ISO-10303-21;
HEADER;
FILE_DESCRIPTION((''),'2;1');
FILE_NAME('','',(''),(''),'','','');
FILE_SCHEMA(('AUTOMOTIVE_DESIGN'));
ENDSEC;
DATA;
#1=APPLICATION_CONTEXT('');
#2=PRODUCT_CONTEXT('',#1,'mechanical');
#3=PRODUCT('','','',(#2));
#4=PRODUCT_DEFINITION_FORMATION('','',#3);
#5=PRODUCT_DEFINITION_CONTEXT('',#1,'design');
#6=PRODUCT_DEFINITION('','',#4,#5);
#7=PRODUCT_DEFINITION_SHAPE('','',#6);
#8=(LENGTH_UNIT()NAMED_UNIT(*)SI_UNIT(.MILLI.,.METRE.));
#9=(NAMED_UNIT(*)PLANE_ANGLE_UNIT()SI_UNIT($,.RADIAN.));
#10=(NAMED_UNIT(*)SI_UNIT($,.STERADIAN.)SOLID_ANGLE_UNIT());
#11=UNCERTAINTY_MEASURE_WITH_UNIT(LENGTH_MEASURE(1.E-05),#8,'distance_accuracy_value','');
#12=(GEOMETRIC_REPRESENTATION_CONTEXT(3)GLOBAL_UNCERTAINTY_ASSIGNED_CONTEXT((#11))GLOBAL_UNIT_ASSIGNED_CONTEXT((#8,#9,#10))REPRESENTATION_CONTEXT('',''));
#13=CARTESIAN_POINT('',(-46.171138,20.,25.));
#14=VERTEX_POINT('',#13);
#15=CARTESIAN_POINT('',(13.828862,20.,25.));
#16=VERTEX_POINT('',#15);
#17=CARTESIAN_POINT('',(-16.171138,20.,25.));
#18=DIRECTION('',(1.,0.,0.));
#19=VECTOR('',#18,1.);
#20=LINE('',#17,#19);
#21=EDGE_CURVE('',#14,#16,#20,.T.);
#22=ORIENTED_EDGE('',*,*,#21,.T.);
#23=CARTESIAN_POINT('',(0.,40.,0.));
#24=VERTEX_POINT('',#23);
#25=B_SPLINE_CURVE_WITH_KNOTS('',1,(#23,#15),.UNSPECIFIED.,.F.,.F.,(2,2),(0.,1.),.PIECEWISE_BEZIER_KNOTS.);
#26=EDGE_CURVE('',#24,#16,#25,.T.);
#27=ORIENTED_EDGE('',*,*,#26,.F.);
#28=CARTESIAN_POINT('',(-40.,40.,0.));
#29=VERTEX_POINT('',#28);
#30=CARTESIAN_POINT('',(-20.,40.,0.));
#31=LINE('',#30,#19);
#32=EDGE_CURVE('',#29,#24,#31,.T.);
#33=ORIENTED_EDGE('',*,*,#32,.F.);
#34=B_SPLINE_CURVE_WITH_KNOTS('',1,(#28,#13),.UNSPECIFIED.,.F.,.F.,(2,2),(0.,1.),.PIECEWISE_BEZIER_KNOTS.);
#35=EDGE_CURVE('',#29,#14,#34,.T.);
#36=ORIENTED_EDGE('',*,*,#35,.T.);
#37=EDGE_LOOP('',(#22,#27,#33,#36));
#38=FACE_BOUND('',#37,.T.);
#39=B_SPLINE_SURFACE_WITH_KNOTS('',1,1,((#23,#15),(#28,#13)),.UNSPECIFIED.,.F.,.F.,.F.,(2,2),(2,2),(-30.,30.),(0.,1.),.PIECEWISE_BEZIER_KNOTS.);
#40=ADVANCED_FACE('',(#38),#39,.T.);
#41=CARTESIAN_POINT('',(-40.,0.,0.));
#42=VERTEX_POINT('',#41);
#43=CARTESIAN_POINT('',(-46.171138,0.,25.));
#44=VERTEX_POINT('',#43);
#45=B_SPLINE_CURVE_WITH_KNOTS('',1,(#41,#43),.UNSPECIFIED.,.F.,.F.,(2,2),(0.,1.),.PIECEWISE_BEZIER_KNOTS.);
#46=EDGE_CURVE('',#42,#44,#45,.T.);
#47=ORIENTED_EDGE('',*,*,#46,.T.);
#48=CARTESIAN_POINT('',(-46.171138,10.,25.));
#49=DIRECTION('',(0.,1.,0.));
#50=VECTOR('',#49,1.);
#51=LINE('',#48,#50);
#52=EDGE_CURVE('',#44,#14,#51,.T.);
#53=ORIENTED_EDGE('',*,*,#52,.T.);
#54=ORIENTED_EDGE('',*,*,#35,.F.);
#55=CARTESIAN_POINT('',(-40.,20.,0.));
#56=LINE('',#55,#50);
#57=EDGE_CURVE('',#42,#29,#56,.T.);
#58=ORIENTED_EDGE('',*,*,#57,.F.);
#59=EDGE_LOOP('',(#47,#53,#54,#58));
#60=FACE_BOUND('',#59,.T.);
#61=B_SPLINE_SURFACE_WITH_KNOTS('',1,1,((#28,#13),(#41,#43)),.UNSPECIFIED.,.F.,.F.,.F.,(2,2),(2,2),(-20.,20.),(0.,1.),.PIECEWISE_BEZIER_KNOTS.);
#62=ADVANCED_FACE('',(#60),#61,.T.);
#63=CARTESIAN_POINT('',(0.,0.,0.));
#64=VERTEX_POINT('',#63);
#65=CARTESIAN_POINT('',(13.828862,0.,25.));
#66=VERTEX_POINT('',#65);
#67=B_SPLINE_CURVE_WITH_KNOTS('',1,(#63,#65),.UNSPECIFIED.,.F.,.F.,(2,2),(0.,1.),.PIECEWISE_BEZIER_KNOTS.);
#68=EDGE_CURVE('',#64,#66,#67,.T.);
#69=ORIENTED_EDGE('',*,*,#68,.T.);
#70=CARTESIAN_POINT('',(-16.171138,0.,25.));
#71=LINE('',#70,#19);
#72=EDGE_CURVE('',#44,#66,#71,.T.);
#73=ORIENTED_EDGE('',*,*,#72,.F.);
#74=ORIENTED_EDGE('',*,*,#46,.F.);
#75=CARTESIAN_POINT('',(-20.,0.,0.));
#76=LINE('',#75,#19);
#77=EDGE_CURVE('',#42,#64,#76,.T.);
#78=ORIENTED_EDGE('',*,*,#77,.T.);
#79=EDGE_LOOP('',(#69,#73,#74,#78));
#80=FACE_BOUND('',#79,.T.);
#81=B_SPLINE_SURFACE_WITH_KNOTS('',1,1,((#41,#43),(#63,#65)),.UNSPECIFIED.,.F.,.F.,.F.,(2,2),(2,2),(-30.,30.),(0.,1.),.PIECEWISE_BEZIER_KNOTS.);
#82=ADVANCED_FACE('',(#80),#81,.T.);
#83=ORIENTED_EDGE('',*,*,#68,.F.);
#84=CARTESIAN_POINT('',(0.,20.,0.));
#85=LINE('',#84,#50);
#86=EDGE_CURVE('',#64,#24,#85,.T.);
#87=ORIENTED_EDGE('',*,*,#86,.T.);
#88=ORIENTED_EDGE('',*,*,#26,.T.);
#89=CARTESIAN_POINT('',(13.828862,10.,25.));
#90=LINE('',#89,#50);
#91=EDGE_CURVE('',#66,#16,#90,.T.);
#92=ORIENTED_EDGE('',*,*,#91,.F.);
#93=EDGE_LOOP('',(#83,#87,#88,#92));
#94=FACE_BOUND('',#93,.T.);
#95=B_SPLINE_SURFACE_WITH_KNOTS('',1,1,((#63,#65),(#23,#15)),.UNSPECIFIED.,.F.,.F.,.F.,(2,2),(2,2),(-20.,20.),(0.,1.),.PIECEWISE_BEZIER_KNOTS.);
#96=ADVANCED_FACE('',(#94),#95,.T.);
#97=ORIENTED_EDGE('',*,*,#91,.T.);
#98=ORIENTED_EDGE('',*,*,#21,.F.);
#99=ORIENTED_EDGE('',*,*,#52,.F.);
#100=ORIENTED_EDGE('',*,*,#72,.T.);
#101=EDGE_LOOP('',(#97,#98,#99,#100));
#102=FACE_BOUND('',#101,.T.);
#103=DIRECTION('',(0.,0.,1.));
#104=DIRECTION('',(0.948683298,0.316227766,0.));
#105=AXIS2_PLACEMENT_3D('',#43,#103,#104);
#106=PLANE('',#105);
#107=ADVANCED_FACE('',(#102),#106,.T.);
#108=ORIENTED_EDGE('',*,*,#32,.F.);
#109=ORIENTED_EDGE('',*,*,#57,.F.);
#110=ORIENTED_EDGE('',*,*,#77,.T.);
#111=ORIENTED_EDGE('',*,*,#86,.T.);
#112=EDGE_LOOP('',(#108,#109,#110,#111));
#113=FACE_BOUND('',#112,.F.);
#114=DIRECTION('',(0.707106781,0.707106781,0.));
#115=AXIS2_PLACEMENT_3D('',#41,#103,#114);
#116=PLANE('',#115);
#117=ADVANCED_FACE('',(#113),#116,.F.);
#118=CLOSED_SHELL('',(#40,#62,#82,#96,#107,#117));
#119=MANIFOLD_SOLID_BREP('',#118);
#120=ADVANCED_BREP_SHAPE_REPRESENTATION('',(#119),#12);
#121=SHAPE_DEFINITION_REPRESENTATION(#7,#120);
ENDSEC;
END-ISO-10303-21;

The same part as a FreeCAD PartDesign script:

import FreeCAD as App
import Part
import Sketcher

V = App.Vector

doc = App.newDocument("Part")
params = doc.addObject("Spreadsheet::Sheet", "Params")
for row, (alias, value) in enumerate([
    ("sketch1_width", "40 mm"),
    ("sketch2_width", "60 mm"),
    ("sketch2_height", "20 mm"),
], start=1):
    params.set(f"A{row}", alias)
    params.set(f"B{row}", "=" + value)
    params.setAlias(f"B{row}", alias)

body = doc.addObject("PartDesign::Body", "Body")

# Sketch on XY plane
sketch1 = body.newObject("Sketcher::SketchObject", "Sketch")
sketch1.AttachmentSupport = (doc.getObject("XY_Plane"), [""])
sketch1.MapMode = "FlatFace"
sketch1.addGeometry(Part.LineSegment(V(-40, 40, 0), V(-40, 0, 0)), False)
sketch1.addGeometry(Part.LineSegment(V(-40, 0, 0), V(0, 0, 0)), False)
sketch1.addGeometry(Part.LineSegment(V(0, 0, 0), V(0, 40, 0)), False)
sketch1.addGeometry(Part.LineSegment(V(0, 40, 0), V(-40, 40, 0)), False)
sketch1.addConstraint(Sketcher.Constraint("Coincident", 0, 2, 1, 1))
sketch1.addConstraint(Sketcher.Constraint("Coincident", 1, 2, 2, 1))
sketch1.addConstraint(Sketcher.Constraint("Coincident", 2, 2, 3, 1))
sketch1.addConstraint(Sketcher.Constraint("Coincident", 3, 2, 0, 1))
sketch1.addConstraint(Sketcher.Constraint("Vertical", 0))
sketch1.addConstraint(Sketcher.Constraint("Horizontal", 1))
sketch1.addConstraint(Sketcher.Constraint("Vertical", 2))
sketch1.addConstraint(Sketcher.Constraint("Horizontal", 3))
sketch1.addConstraint(Sketcher.Constraint("Coincident", 1, 2, -1, 1))
sketch1.addConstraint(Sketcher.Constraint("Equal", 3, 0))
sketch1.addConstraint(Sketcher.Constraint("DistanceX", 1, 1, 1, 2, 40.0))
sketch1.setExpression("Constraints[10]", "Params.sketch1_width")

# Sketch on XY plane
sketch2 = body.newObject("Sketcher::SketchObject", "Sketch001")
sketch2.AttachmentSupport = (doc.getObject("XY_Plane"), [""])
sketch2.MapMode = "FlatFace"
sketch2.AttachmentOffset = App.Placement(V(0, 0, 25), App.Rotation())
sketch2.addGeometry(Part.LineSegment(V(-46, 20, 0), V(-46, 0, 0)), False)
sketch2.addGeometry(Part.LineSegment(V(-46, 0, 0), V(14, 0, 0)), False)
sketch2.addGeometry(Part.LineSegment(V(14, 0, 0), V(14, 20, 0)), False)
sketch2.addGeometry(Part.LineSegment(V(14, 20, 0), V(-46, 20, 0)), False)
sketch2.addConstraint(Sketcher.Constraint("Coincident", 0, 2, 1, 1))
sketch2.addConstraint(Sketcher.Constraint("Coincident", 1, 2, 2, 1))
sketch2.addConstraint(Sketcher.Constraint("Coincident", 2, 2, 3, 1))
sketch2.addConstraint(Sketcher.Constraint("Coincident", 3, 2, 0, 1))
sketch2.addConstraint(Sketcher.Constraint("Vertical", 0))
sketch2.addConstraint(Sketcher.Constraint("Horizontal", 1))
sketch2.addConstraint(Sketcher.Constraint("Vertical", 2))
sketch2.addConstraint(Sketcher.Constraint("Horizontal", 3))
sketch2.addConstraint(Sketcher.Constraint("PointOnObject", 0, 2, -1))
sketch2.addConstraint(Sketcher.Constraint("DistanceX", 1, 1, 1, 2, 60.0))
sketch2.addConstraint(Sketcher.Constraint("DistanceY", 0, 2, 0, 1, 20.0))
sketch2.addConstraint(Sketcher.Constraint("DistanceX", 0, 2, -1, 1, 46.171138))
sketch2.setExpression("Constraints[9]", "Params.sketch2_width")
sketch2.setExpression("Constraints[10]", "Params.sketch2_height")

additiveloft = body.newObject("PartDesign::AdditiveLoft", "AdditiveLoft")
additiveloft.Profile = sketch1
additiveloft.Sections = [sketch2]

doc.recompute()
